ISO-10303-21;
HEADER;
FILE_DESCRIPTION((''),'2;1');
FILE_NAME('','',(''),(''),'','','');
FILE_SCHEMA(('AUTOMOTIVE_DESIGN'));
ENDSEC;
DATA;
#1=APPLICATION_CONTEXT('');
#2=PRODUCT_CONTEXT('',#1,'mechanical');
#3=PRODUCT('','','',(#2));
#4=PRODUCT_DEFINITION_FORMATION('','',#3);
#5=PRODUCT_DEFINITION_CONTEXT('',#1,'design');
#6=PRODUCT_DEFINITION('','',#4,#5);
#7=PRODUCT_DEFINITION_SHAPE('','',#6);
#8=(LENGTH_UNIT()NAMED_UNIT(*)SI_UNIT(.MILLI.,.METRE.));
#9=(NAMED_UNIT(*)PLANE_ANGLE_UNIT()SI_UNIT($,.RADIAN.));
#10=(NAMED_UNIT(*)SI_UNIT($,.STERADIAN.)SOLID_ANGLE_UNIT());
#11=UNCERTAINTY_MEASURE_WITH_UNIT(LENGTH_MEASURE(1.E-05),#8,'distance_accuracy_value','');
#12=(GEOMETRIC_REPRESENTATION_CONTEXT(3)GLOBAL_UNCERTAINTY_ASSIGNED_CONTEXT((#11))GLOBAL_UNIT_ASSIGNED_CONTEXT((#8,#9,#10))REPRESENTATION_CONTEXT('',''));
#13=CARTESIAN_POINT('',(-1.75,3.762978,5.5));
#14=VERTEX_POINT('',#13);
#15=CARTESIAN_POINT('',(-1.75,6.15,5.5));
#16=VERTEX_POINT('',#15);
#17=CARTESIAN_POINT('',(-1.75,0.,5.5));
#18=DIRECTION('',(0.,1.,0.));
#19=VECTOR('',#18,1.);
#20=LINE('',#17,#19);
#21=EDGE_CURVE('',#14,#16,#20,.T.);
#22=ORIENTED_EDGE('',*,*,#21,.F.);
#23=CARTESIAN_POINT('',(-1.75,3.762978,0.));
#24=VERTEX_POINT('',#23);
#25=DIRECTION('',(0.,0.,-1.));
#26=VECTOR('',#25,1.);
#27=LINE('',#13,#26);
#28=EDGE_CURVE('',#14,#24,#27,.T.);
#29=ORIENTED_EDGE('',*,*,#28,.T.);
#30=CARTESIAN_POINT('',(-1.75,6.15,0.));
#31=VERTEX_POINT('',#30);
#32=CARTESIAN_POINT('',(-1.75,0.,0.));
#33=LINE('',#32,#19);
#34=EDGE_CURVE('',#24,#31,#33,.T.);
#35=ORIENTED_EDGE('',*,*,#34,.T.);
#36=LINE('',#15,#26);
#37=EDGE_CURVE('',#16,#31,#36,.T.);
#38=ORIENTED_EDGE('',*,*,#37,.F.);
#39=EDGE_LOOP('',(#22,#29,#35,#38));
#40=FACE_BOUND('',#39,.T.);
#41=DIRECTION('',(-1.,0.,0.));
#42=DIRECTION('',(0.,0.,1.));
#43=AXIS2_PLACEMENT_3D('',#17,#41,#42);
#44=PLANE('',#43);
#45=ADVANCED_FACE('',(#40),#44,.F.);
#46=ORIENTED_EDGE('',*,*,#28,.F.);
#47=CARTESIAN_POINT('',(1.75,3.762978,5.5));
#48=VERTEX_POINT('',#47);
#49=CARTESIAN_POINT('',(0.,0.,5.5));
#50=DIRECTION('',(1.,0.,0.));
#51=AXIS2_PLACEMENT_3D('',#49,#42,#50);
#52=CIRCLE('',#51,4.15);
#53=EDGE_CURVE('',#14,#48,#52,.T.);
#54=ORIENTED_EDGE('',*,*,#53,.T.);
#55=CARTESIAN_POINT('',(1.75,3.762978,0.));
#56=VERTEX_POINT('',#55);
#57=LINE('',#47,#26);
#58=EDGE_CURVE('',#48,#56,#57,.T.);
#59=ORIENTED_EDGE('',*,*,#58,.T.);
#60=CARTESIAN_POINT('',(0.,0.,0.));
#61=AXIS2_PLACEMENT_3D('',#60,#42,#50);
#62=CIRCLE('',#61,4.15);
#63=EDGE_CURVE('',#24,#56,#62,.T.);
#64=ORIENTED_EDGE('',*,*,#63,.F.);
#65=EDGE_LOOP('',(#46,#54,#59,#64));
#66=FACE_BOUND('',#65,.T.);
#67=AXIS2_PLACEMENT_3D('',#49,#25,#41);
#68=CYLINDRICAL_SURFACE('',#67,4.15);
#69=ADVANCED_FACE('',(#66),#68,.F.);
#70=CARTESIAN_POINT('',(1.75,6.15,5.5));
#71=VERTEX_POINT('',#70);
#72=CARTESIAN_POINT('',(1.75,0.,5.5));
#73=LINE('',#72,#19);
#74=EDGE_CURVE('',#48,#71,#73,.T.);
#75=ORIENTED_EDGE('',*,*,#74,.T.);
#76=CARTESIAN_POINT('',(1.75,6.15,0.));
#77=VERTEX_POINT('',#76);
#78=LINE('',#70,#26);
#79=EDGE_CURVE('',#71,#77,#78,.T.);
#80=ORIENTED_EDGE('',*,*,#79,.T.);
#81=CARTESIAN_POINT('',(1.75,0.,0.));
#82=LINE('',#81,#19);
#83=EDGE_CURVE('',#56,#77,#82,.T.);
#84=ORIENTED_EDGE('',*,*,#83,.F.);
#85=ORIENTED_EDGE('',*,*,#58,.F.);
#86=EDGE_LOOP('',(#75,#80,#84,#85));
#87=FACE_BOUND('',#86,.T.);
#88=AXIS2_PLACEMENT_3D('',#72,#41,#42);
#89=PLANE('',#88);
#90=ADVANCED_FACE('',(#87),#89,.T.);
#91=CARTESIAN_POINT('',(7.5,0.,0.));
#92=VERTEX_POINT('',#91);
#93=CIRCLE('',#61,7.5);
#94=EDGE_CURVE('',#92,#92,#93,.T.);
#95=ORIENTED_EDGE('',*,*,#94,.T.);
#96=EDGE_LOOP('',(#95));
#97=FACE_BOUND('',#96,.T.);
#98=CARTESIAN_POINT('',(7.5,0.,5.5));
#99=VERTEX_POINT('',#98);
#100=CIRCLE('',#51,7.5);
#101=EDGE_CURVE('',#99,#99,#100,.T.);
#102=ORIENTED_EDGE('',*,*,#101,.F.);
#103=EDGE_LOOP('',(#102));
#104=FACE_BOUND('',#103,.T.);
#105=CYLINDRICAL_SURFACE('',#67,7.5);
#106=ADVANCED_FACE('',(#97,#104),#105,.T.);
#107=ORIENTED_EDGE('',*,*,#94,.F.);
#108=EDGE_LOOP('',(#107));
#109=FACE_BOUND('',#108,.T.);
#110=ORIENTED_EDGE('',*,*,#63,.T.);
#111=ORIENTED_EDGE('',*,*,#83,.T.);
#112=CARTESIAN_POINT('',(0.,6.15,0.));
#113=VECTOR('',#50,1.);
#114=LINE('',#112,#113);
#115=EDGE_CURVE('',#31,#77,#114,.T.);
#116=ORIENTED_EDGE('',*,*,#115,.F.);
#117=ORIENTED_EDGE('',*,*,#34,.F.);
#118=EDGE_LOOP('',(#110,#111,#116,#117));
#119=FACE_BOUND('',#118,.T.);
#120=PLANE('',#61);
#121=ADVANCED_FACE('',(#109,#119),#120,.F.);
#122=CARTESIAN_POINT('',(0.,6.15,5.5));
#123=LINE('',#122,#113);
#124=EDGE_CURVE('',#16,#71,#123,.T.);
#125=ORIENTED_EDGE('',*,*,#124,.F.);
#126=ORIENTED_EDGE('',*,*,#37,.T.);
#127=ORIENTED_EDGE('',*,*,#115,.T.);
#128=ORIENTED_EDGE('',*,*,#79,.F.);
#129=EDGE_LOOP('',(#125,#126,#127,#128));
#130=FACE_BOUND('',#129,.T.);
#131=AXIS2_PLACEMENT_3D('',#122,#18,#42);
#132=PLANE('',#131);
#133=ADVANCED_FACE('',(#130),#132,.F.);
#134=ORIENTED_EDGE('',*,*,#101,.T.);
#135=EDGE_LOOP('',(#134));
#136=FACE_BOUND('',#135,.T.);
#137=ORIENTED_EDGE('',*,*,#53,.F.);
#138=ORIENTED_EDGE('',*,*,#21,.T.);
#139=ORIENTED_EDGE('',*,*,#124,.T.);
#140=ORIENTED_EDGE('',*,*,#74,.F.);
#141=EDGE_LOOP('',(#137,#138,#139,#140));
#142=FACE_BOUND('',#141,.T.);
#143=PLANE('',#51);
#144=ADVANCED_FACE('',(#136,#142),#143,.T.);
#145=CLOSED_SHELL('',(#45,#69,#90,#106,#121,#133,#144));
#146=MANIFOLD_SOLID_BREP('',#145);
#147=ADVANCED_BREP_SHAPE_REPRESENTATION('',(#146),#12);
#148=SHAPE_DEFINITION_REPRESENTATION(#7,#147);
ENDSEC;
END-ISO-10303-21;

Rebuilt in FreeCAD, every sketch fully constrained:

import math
import FreeCAD as App
import Part
import Sketcher
from FreeCAD import Vector

doc = App.newDocument("Part")
body = doc.addObject("PartDesign::Body", "Body")

# Sketch on XY plane
sketch1 = doc.addObject("Sketcher::SketchObject", "Sketch")
body.addObject(sketch1)
sketch1.AttachmentSupport = (doc.XY_Plane, [""])
sketch1.MapMode = "FlatFace"
sketch1.addGeometry([
    Part.Circle(Vector(0, 0, 0), Vector(0, 0, 1), 7.5),  # 0
    Part.ArcOfCircle(Part.Circle(Vector(0, 0, 0), Vector(0, 0, 1), 4.15), math.radians(0), math.radians(65.058875)),  # 1
    Part.ArcOfCircle(Part.Circle(Vector(0, 0, 0), Vector(0, 0, 1), 4.15), math.radians(114.941125), math.radians(360)),  # 2
    Part.LineSegment(Vector(-1.75, 3.762978, 0), Vector(-1.75, 6.15, 0)),  # 3
    Part.LineSegment(Vector(-1.75, 6.15, 0), Vector(1.75, 6.15, 0)),  # 4
    Part.LineSegment(Vector(1.75, 6.15, 0), Vector(1.75, 3.762978, 0)),  # 5
], False)
sketch1.addConstraint([
    Sketcher.Constraint("Tangent", 1, 1, 2, 2),
    Sketcher.Constraint("Coincident", 2, 1, 3, 1),
    Sketcher.Constraint("Coincident", 3, 2, 4, 1),
    Sketcher.Constraint("Coincident", 4, 2, 5, 1),
    Sketcher.Constraint("Coincident", 5, 2, 1, 2),
    Sketcher.Constraint("Vertical", 3),
    Sketcher.Constraint("Horizontal", 4),
    Sketcher.Constraint("Vertical", 5),
    Sketcher.Constraint("Coincident", 0, 3, -1, 1),
    Sketcher.Constraint("Coincident", 1, 3, -1, 1),
    Sketcher.Constraint("Equal", 1, 2),
    Sketcher.Constraint("PointOnObject", 1, 1, -1),
    Sketcher.Constraint("Horizontal", 2, 1, 5, 2),
    Sketcher.Constraint("Diameter", 0, 15.0),
    Sketcher.Constraint("Radius", 1, 4.15),
    Sketcher.Constraint("DistanceX", 4, 1, 4, 2, 3.5),
    Sketcher.Constraint("DistanceY", -1, 1, 3, 2, 6.15),
])
pad1 = doc.addObject("PartDesign::Pad", "Pad")
body.addObject(pad1)
pad1.Profile = sketch1
pad1.Length = 5.5

doc.recompute()
